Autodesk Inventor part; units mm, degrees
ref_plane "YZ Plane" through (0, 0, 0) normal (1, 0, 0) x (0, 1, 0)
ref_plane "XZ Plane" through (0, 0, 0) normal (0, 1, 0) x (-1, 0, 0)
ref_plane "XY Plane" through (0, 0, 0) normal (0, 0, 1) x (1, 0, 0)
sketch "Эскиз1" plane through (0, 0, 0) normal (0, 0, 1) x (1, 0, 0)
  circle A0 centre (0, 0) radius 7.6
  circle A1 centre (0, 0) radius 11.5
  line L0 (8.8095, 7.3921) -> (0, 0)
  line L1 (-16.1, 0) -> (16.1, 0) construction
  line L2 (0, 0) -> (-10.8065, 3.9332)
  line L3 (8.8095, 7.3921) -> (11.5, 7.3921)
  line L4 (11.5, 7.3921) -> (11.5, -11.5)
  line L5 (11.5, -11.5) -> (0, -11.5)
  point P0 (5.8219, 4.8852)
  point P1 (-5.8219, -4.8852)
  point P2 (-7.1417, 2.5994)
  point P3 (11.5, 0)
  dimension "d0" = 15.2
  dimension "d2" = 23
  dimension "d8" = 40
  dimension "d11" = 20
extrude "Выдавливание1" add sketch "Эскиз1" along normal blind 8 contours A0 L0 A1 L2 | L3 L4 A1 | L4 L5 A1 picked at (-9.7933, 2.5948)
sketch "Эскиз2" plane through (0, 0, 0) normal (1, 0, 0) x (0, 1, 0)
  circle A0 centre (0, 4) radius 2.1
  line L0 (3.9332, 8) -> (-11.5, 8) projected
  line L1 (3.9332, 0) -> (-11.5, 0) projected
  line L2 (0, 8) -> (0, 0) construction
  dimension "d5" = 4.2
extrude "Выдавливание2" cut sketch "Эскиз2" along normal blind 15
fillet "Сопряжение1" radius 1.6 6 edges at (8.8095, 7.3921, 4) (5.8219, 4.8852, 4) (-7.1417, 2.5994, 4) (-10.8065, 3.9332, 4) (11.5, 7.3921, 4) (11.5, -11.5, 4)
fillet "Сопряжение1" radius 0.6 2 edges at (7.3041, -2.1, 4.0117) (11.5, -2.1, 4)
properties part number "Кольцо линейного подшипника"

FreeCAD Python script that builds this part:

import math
import FreeCAD as App
import Part
import Sketcher

V = App.Vector
Q = App.Units.Quantity


def edges_at(feature, points):
    """Names of the edges that pass closest to the given points."""
    edges = feature.Shape.Edges
    near = lambda p: min(range(len(edges)), key=lambda i: edges[i].distToShape(Part.Vertex(*p))[0])
    return sorted({f"Edge{near(p) + 1}" for p in points})

doc = App.newDocument("Part")
body = doc.addObject("PartDesign::Body", "Body")

sketch1 = body.newObject("Sketcher::SketchObject", "Sketch")
sketch1.AttachmentSupport = (doc.getObject("XY_Plane"), [""])
sketch1.MapMode = "FlatFace"
sketch1.addGeometry([
    Part.ArcOfCircle(Part.Circle(V(0, 0, 0), V(0, 0, 1), 7.6), math.radians(160), math.radians(400)),
    Part.LineSegment(V(-7.1, 2.6, 0), V(-10.8, 3.9, 0)),
    Part.ArcOfCircle(Part.Circle(V(0, 0, 0), V(0, 0, 1), 11.5), math.radians(160), math.radians(270)),
    Part.LineSegment(V(0, -11.5, 0), V(11.5, -11.5, 0)),
    Part.LineSegment(V(11.5, -11.5, 0), V(11.5, 7.4, 0)),
    Part.LineSegment(V(11.5, 7.4, 0), V(8.8, 7.4, 0)),
    Part.LineSegment(V(8.8, 7.4, 0), V(5.8, 4.9, 0)),
], False)
sketch1.addConstraint([
    Sketcher.Constraint("Coincident", 0, 1, 1, 1),
    Sketcher.Constraint("Coincident", 1, 2, 2, 1),
    Sketcher.Constraint("Tangent", 2, 2, 3, 1),
    Sketcher.Constraint("Coincident", 3, 2, 4, 1),
    Sketcher.Constraint("Coincident", 4, 2, 5, 1),
    Sketcher.Constraint("Coincident", 5, 2, 6, 1),
    Sketcher.Constraint("Coincident", 6, 2, 0, 2),
    Sketcher.Constraint("Horizontal", 3),
    Sketcher.Constraint("Vertical", 4),
    Sketcher.Constraint("Horizontal", 5),
    Sketcher.Constraint("Coincident", 0, 3, -1, 1),
    Sketcher.Constraint("Coincident", 2, 3, -1, 1),
    Sketcher.Constraint("Equal", 1, 6),
    Sketcher.Constraint("Radius", 0, Q("7.6 mm")),
    Sketcher.Constraint("Radius", 2, Q("11.5 mm")),
    Sketcher.Constraint("Angle", 1, Q("160.0002 deg")),
    Sketcher.Constraint("Angle", 6, Q("-139.9998 deg")),
    Sketcher.Constraint("DistanceX", 3, 1, 3, 2, Q("11.5 mm")),
    Sketcher.Constraint("DistanceY", 4, 1, 4, 2, Q("18.892 mm")),
    Sketcher.Constraint("DistanceX", 0, 1, -1, 1, Q("7.1417 mm")),
])
pad1 = body.newObject("PartDesign::Pad", "Pad")
pad1.Profile = sketch1
pad1.Length = 8

sketch2 = body.newObject("Sketcher::SketchObject", "Sketch001")
sketch2.AttachmentSupport = (doc.getObject("YZ_Plane"), [""])
sketch2.MapMode = "FlatFace"
sketch2.addGeometry(Part.Circle(V(0, 4, 0), V(0, 0, 1), 2.1), False)
sketch2.addConstraint([
    Sketcher.Constraint("PointOnObject", 0, 3, -2),
    Sketcher.Constraint("Diameter", 0, Q("4.2 mm")),
    Sketcher.Constraint("DistanceY", -1, 1, 0, 3, Q("4 mm")),
])
pocket1 = body.newObject("PartDesign::Pocket", "Pocket")
pocket1.Profile = sketch2
pocket1.Length = 15
pocket1.Reversed = True
doc.recompute()

fillet = body.newObject("PartDesign::Fillet", "Fillet")
fillet.Base = (pocket1, edges_at(pocket1, [
    (8.809, 7.392, 4),
    (5.822, 4.885, 4),
    (-7.142, 2.599, 4),
    (-10.806, 3.933, 4),
    (11.5, 7.392, 4),
    (11.5, -11.5, 4),
]))
fillet.Radius = 1.6
doc.recompute()

fillet2 = body.newObject("PartDesign::Fillet", "Fillet001")
fillet2.Base = (fillet, edges_at(fillet, [(7.304, -2.1, 4.012), (11.5, -2.1, 4)]))
fillet2.Radius = 0.6

doc.recompute()
